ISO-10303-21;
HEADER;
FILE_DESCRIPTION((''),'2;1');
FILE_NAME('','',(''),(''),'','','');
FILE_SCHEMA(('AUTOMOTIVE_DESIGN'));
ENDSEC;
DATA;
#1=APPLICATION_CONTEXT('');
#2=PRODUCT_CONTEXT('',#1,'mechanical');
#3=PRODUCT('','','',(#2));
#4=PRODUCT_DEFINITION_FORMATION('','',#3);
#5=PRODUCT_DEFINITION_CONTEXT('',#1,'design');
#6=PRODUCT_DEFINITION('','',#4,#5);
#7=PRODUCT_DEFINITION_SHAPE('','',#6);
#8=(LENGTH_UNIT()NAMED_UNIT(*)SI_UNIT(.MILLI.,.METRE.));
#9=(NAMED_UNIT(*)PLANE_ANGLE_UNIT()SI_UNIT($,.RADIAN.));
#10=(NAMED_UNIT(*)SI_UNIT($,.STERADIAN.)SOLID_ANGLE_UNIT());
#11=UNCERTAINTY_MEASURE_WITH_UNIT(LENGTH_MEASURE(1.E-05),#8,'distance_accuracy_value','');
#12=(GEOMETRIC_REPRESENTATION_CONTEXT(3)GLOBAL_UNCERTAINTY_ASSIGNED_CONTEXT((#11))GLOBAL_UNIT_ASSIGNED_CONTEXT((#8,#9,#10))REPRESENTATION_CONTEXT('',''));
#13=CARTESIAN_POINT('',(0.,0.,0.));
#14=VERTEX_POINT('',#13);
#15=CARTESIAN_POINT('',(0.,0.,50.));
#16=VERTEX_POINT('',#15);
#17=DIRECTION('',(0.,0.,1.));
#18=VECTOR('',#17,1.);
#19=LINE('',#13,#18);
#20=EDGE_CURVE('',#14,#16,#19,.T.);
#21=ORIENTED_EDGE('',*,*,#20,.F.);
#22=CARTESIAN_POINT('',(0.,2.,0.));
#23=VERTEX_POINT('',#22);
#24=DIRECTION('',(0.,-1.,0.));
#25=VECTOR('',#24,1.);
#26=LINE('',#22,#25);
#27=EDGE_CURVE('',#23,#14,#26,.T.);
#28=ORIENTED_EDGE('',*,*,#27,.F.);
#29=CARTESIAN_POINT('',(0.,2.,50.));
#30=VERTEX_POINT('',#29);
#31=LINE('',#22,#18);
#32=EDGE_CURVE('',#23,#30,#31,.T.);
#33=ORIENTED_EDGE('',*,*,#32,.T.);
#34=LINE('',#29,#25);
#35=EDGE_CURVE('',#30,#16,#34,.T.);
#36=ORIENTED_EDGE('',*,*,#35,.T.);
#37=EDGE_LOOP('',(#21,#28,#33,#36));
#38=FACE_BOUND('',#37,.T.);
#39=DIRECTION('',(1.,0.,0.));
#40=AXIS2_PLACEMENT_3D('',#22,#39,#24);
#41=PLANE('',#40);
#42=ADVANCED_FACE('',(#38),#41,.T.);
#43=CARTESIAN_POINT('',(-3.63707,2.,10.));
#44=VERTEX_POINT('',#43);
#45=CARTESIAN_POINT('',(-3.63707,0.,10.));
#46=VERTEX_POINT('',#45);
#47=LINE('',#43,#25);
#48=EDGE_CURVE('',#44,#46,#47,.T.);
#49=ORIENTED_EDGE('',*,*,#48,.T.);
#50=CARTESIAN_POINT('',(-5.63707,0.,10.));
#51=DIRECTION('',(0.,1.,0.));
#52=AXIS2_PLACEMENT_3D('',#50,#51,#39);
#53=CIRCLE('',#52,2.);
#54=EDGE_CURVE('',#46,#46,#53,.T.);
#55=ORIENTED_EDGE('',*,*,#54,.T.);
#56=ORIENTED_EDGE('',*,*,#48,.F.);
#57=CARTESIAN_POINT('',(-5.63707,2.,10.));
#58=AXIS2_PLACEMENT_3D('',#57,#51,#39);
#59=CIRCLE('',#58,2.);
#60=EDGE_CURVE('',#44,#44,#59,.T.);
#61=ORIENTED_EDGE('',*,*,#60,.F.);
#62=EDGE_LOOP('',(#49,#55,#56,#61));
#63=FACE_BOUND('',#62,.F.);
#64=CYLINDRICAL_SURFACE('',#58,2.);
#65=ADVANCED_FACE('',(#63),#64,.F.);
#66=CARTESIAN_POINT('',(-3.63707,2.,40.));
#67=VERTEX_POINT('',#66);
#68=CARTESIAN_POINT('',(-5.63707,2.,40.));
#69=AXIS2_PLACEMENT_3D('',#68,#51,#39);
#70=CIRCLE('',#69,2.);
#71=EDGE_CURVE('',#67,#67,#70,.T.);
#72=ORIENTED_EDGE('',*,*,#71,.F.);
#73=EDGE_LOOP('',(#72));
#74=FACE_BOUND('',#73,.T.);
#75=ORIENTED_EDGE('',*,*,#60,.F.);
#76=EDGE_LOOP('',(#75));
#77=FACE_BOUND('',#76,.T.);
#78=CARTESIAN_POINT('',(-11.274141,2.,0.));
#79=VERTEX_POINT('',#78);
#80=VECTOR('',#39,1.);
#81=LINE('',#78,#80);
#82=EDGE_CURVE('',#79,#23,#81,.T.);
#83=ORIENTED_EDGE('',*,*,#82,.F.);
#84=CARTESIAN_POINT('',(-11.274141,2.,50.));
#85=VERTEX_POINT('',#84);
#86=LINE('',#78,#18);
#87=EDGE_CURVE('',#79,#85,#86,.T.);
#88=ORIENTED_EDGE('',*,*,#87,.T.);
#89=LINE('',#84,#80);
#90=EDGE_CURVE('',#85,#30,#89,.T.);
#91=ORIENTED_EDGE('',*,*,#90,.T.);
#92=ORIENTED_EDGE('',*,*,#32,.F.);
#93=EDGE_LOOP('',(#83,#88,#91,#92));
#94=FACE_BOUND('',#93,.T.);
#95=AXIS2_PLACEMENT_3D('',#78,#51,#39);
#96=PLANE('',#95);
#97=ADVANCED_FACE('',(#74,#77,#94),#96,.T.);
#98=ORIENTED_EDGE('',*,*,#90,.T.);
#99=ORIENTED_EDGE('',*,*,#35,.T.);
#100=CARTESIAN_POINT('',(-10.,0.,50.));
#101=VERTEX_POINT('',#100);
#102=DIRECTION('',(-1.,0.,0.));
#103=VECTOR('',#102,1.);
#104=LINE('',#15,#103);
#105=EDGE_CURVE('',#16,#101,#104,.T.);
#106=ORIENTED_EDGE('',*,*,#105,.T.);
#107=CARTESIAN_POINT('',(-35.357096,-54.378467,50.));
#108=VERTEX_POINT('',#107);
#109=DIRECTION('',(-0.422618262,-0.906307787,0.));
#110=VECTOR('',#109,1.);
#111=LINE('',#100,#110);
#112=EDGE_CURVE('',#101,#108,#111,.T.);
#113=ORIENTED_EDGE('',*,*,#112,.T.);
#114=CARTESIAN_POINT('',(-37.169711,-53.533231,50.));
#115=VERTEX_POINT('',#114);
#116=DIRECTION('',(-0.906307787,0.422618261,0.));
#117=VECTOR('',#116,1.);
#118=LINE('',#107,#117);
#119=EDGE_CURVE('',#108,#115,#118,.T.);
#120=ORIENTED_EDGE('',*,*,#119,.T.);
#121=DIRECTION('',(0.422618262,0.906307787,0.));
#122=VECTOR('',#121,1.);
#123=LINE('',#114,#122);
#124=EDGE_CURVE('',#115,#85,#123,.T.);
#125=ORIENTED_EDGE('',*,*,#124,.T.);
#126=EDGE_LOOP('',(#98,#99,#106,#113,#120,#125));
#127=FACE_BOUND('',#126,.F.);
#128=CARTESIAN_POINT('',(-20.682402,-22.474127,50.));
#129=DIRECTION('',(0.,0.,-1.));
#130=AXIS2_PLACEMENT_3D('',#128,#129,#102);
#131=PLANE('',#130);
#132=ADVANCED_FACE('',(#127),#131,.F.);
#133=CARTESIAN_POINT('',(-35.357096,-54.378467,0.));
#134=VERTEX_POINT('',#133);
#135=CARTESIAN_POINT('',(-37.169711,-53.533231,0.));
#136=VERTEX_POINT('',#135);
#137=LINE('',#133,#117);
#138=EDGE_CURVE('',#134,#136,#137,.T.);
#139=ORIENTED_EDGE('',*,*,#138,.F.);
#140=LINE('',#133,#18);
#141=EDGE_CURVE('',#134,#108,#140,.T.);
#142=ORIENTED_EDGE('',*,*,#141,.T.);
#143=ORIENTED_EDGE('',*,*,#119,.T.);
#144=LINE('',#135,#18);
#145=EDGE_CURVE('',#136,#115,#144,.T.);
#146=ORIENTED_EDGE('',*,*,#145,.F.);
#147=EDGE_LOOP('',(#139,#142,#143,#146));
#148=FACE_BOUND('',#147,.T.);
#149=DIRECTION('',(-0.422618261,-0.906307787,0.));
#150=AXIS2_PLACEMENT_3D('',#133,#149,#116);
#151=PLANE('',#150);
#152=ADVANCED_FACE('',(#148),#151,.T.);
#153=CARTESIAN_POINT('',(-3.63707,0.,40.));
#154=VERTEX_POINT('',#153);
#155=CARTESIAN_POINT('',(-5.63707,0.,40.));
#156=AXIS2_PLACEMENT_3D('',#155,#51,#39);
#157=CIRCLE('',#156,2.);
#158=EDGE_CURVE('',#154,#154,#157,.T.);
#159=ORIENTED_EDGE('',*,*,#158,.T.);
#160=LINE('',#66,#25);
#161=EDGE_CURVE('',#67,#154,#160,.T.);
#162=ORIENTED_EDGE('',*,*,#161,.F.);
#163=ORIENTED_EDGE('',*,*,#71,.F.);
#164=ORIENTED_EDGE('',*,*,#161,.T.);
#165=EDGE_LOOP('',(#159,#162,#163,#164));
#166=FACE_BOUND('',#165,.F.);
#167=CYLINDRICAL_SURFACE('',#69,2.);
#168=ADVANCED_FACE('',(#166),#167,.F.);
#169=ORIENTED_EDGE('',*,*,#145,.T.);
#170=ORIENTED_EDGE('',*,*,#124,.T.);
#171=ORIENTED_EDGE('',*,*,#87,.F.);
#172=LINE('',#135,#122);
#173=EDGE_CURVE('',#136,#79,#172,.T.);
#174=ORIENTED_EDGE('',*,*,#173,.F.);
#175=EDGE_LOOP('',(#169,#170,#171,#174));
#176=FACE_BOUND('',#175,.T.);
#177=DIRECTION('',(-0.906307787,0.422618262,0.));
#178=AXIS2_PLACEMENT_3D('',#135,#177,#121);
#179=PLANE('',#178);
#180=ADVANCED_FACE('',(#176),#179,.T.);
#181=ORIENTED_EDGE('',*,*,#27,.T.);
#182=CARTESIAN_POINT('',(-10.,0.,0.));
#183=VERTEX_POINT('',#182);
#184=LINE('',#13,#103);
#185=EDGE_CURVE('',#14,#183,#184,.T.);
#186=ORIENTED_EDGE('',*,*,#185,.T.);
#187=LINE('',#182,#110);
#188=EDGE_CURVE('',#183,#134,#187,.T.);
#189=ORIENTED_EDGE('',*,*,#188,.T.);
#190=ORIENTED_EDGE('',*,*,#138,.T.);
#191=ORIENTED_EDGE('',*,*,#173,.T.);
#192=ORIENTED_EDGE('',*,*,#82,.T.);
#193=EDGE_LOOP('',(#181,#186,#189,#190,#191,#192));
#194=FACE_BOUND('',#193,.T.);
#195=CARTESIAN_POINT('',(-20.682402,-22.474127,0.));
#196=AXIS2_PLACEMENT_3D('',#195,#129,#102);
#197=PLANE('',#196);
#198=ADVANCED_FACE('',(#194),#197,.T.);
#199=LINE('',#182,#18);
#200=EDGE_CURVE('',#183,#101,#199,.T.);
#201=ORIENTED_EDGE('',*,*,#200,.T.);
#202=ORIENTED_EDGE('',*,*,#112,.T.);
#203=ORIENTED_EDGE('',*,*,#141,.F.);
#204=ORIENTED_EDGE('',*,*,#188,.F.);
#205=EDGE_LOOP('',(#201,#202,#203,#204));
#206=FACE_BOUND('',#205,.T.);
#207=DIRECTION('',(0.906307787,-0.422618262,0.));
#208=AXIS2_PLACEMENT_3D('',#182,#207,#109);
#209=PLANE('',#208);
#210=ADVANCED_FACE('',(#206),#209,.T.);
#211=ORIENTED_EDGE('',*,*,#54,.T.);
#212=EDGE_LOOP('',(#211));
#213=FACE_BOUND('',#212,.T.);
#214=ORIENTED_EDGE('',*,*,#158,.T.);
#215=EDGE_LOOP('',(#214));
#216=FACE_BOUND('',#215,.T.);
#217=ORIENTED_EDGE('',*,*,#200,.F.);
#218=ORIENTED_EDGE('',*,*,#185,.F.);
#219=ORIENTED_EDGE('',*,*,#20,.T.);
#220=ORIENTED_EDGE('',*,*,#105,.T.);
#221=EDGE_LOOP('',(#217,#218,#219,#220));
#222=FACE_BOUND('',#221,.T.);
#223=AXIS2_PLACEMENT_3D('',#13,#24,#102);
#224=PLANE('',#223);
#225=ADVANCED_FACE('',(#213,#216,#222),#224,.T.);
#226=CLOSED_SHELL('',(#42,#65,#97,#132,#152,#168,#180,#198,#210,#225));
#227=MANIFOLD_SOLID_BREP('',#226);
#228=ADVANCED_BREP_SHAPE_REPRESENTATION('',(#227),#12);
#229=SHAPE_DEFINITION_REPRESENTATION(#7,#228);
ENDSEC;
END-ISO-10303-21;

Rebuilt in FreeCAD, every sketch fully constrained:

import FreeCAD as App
import Part
import Sketcher
from FreeCAD import Vector
Q = App.Units.Quantity

doc = App.newDocument("Part")
params = doc.addObject("Spreadsheet::Sheet", "Params")
for row, (alias, value) in enumerate([
    ("sketch1_width", "10 mm"),
    ("sketch1_height", "2 mm"),
    ("sketch1_length", "2 mm"),
    ("sketch1_length2", "60 mm"),
    ("pad1_length", "50 mm"),
    ("sketch2_diameter", "4 mm"),
    ("sketch3_diameter", "4 mm"),
], start=1):
    params.set(f"A{row}", alias)
    params.set(f"B{row}", "=" + value)
    params.setAlias(f"B{row}", alias)

body = doc.addObject("PartDesign::Body", "Body")

sketch1 = body.newObject("Sketcher::SketchObject", "Sketch")
sketch1.AttachmentSupport = (doc.getObject("XY_Plane"), [""])
sketch1.MapMode = "FlatFace"
sketch1.addGeometry([
    Part.LineSegment(Vector(-10, 0, 0), Vector(0, 0, 0)),
    Part.LineSegment(Vector(0, 0, 0), Vector(0, 2, 0)),
    Part.LineSegment(Vector(0, 2, 0), Vector(-11.3, 2, 0)),
    Part.LineSegment(Vector(-11.3, 2, 0), Vector(-37.2, -53.5, 0)),
    Part.LineSegment(Vector(-37.2, -53.5, 0), Vector(-35.4, -54.4, 0)),
    Part.LineSegment(Vector(-35.4, -54.4, 0), Vector(-10, 0, 0)),
], False)
sketch1.addConstraint([
    Sketcher.Constraint("Coincident", 0, 2, 1, 1),
    Sketcher.Constraint("Coincident", 1, 2, 2, 1),
    Sketcher.Constraint("Coincident", 2, 2, 3, 1),
    Sketcher.Constraint("Coincident", 3, 2, 4, 1),
    Sketcher.Constraint("Coincident", 4, 2, 5, 1),
    Sketcher.Constraint("Coincident", 5, 2, 0, 1),
    Sketcher.Constraint("Horizontal", 0),
    Sketcher.Constraint("Vertical", 1),
    Sketcher.Constraint("Horizontal", 2),
    Sketcher.Constraint("Coincident", 0, 2, -1, 1),
    Sketcher.Constraint("Perpendicular", 3, 4),
    Sketcher.Constraint("Perpendicular", 4, 5),
    Sketcher.Constraint("DistanceX", 0, 1, 0, 2, Q("10 mm")),
    Sketcher.Constraint("DistanceY", 1, 1, 1, 2, Q("2 mm")),
    Sketcher.Constraint("Angle", 3, Q("-115 deg")),
    Sketcher.Constraint("Distance", 4, Q("2 mm")),
    Sketcher.Constraint("Distance", 5, Q("60 mm")),
])
sketch1.setExpression("Constraints[12]", "Params.sketch1_width")
sketch1.setExpression("Constraints[13]", "Params.sketch1_height")
sketch1.setExpression("Constraints[15]", "Params.sketch1_length")
sketch1.setExpression("Constraints[16]", "Params.sketch1_length2")
pad1 = body.newObject("PartDesign::Pad", "Pad")
pad1.Profile = sketch1
pad1.setExpression("Length", "Params.pad1_length")

sketch2 = body.newObject("Sketcher::SketchObject", "Sketch001")
sketch2.AttachmentSupport = (doc.getObject("XZ_Plane"), [""])
sketch2.MapMode = "FlatFace"
sketch2.AttachmentOffset = App.Placement(Vector(0, 0, -2), App.Rotation())
sketch2.addGeometry(Part.Circle(Vector(-5.6, 10, 0), Vector(0, 0, 1), 2), False)
sketch2.addConstraint([
    Sketcher.Constraint("Diameter", 0, Q("4 mm")),
    Sketcher.Constraint("DistanceY", -1, 1, 0, 3, Q("10 mm")),
    Sketcher.Constraint("DistanceX", 0, 3, -1, 1, Q("5.63707 mm")),
])
sketch2.setExpression("Constraints[0]", "Params.sketch2_diameter")
pocket1 = body.newObject("PartDesign::Pocket", "Pocket")
pocket1.Profile = sketch2
pocket1.Type = "UpToFirst"
pocket1.Reversed = True

sketch3 = body.newObject("Sketcher::SketchObject", "Sketch002")
sketch3.AttachmentSupport = (doc.getObject("XZ_Plane"), [""])
sketch3.MapMode = "FlatFace"
sketch3.AttachmentOffset = App.Placement(Vector(0, 0, -2), App.Rotation())
sketch3.addGeometry(Part.Circle(Vector(-5.6, 40, 0), Vector(0, 0, 1), 2), False)
sketch3.addConstraint([
    Sketcher.Constraint("Diameter", 0, Q("4 mm")),
    Sketcher.Constraint("DistanceY", -1, 1, 0, 3, Q("40 mm")),
    Sketcher.Constraint("DistanceX", 0, 3, -1, 1, Q("5.63707 mm")),
])
sketch3.setExpression("Constraints[0]", "Params.sketch3_diameter")
pocket2 = body.newObject("PartDesign::Pocket", "Pocket001")
pocket2.Profile = sketch3
pocket2.Type = "UpToFirst"
pocket2.Reversed = True

doc.recompute()
